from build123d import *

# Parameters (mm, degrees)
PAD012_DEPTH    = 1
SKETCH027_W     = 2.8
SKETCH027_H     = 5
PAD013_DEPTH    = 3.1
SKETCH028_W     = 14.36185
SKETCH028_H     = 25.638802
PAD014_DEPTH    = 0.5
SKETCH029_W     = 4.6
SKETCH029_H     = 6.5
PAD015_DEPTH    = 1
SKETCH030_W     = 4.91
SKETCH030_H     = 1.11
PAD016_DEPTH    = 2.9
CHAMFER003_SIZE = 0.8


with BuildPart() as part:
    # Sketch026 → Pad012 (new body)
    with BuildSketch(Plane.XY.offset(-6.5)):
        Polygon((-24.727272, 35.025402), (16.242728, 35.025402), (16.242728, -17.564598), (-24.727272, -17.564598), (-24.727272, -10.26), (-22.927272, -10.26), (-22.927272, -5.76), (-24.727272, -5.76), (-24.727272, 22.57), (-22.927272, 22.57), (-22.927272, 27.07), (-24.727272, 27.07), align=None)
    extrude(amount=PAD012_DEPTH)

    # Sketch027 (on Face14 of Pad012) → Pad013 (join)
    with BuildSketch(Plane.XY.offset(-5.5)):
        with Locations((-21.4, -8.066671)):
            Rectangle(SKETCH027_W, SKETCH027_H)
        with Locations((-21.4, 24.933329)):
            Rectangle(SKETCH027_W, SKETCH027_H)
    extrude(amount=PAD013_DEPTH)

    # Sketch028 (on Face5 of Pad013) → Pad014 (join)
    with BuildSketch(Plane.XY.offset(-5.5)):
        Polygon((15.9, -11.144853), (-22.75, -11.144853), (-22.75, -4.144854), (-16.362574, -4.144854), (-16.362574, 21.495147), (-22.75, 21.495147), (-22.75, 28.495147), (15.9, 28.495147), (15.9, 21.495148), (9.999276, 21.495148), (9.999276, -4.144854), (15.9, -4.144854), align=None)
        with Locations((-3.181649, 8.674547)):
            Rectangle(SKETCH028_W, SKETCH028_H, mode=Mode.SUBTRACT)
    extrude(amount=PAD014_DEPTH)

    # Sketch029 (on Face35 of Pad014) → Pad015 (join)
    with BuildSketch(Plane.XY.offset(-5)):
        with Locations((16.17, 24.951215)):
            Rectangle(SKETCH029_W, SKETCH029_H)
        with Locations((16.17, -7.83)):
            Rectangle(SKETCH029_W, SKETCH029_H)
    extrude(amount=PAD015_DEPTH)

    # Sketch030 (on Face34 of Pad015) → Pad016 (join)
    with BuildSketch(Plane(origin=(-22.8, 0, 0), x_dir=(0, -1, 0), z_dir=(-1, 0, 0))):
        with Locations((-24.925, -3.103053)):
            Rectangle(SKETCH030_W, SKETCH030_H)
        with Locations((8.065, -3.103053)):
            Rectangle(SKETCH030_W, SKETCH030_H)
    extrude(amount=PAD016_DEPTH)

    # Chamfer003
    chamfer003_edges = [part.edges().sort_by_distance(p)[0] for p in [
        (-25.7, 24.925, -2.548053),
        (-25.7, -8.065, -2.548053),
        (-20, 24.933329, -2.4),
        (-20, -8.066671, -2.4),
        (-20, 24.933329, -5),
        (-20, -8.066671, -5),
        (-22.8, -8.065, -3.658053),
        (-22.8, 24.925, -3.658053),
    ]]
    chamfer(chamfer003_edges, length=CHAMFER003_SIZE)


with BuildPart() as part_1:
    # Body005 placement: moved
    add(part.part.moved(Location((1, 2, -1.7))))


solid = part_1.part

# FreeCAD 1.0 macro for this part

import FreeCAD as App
import Part
import Sketcher


def edges_at(feature, points):
    """Names of the edges that pass closest to the given points."""
    edges = feature.Shape.Edges
    near = lambda p: min(range(len(edges)), key=lambda i: edges[i].distToShape(Part.Vertex(*p))[0])
    return sorted({f"Edge{near(p) + 1}" for p in points})

doc = App.newDocument("Part")
body = doc.addObject("PartDesign::Body", "Body")

# Sketch on XY plane
sketch1 = doc.addObject("Sketcher::SketchObject", "Sketch")
body.addObject(sketch1)
sketch1.AttachmentSupport = (doc.XY_Plane, [""])
sketch1.MapMode = "FlatFace"
sketch1.AttachmentOffset = App.Placement(App.Vector(0, 0, -6.5), App.Rotation())
sketch1.addGeometry([
    Part.LineSegment(App.Vector(16.242728, 35.025402, 0), App.Vector(-24.727272, 35.025402, 0)),  # 0
    Part.LineSegment(App.Vector(-24.727272, 35.025402, 0), App.Vector(-24.727272, 27.07, 0)),  # 1
    Part.LineSegment(App.Vector(-24.727272, 27.07, 0), App.Vector(-22.927272, 27.07, 0)),  # 2
    Part.LineSegment(App.Vector(-22.927272, 27.07, 0), App.Vector(-22.927272, 22.57, 0)),  # 3
    Part.LineSegment(App.Vector(-22.927272, 22.57, 0), App.Vector(-24.727272, 22.57, 0)),  # 4
    Part.LineSegment(App.Vector(-24.727272, 22.57, 0), App.Vector(-24.727272, -5.76, 0)),  # 5
    Part.LineSegment(App.Vector(-24.727272, -5.76, 0), App.Vector(-22.927272, -5.76, 0)),  # 6
    Part.LineSegment(App.Vector(-22.927272, -5.76, 0), App.Vector(-22.927272, -10.26, 0)),  # 7
    Part.LineSegment(App.Vector(-22.927272, -10.26, 0), App.Vector(-24.727272, -10.26, 0)),  # 8
    Part.LineSegment(App.Vector(-24.727272, -10.26, 0), App.Vector(-24.727272, -17.564598, 0)),  # 9
    Part.LineSegment(App.Vector(-24.727272, -17.564598, 0), App.Vector(16.242728, -17.564598, 0)),  # 10
    Part.LineSegment(App.Vector(16.242728, -17.564598, 0), App.Vector(16.242728, 35.025402, 0)),  # 11
], False)
sketch1.addConstraint([
    Sketcher.Constraint("Coincident", 0, 2, 1, 1),
    Sketcher.Constraint("Coincident", 1, 2, 2, 1),
    Sketcher.Constraint("Coincident", 2, 2, 3, 1),
    Sketcher.Constraint("Coincident", 3, 2, 4, 1),
    Sketcher.Constraint("Coincident", 4, 2, 5, 1),
    Sketcher.Constraint("Coincident", 5, 2, 6, 1),
    Sketcher.Constraint("Coincident", 6, 2, 7, 1),
    Sketcher.Constraint("Coincident", 7, 2, 8, 1),
    Sketcher.Constraint("Coincident", 8, 2, 9, 1),
    Sketcher.Constraint("Coincident", 9, 2, 10, 1),
    Sketcher.Constraint("Coincident", 10, 2, 11, 1),
    Sketcher.Constraint("Coincident", 11, 2, 0, 1),
    Sketcher.Constraint("Horizontal", 0),
    Sketcher.Constraint("Vertical", 1),
    Sketcher.Constraint("Horizontal", 2),
    Sketcher.Constraint("Vertical", 3),
    Sketcher.Constraint("Horizontal", 4),
    Sketcher.Constraint("Vertical", 5),
    Sketcher.Constraint("Horizontal", 6),
    Sketcher.Constraint("Vertical", 7),
    Sketcher.Constraint("Horizontal", 8),
    Sketcher.Constraint("Vertical", 9),
    Sketcher.Constraint("Horizontal", 10),
    Sketcher.Constraint("Vertical", 11),
    Sketcher.Constraint("Vertical", 1, 2, 4, 2),
    Sketcher.Constraint("Vertical", 3, 2, 6, 2),
    Sketcher.Constraint("Vertical", 5, 2, 8, 2),
    Sketcher.Constraint("Equal", 3, 7),
    Sketcher.Constraint("DistanceX", 2, 1, 2, 2, 1.8),
    Sketcher.Constraint("DistanceY", 3, 2, 3, 1, 4.5),
    Sketcher.Constraint("DistanceX", 0, 2, 0, 1, 40.97),
    Sketcher.Constraint("DistanceY", 5, 2, 5, 1, 28.33),
    Sketcher.Constraint("DistanceY", 11, 1, 11, 2, 52.59),
    Sketcher.Constraint("DistanceY", -1, 1, 1, 2, 27.07),
    Sketcher.Constraint("DistanceY", 1, 2, 1, 1, 7.955402),
    Sketcher.Constraint("DistanceX", 0, 2, -1, 1, 24.727272),
])
pad1 = doc.addObject("PartDesign::Pad", "Pad")
body.addObject(pad1)
pad1.Profile = sketch1
pad1.Length = 1

# Sketch on XY plane
sketch2 = doc.addObject("Sketcher::SketchObject", "Sketch001")
body.addObject(sketch2)
sketch2.AttachmentSupport = (doc.XY_Plane, [""])
sketch2.MapMode = "FlatFace"
sketch2.AttachmentOffset = App.Placement(App.Vector(0, 0, -5.5), App.Rotation())
sketch2.addGeometry([
    Part.LineSegment(App.Vector(-22.8, -5.566671, 0), App.Vector(-22.8, -10.566671, 0)),  # 0
    Part.LineSegment(App.Vector(-22.8, -10.566671, 0), App.Vector(-20, -10.566671, 0)),  # 1
    Part.LineSegment(App.Vector(-20, -10.566671, 0), App.Vector(-20, -5.566671, 0)),  # 2
    Part.LineSegment(App.Vector(-20, -5.566671, 0), App.Vector(-22.8, -5.566671, 0)),  # 3
    Part.LineSegment(App.Vector(-22.8, 27.433329, 0), App.Vector(-22.8, 22.433329, 0)),  # 4
    Part.LineSegment(App.Vector(-22.8, 22.433329, 0), App.Vector(-20, 22.433329, 0)),  # 5
    Part.LineSegment(App.Vector(-20, 22.433329, 0), App.Vector(-20, 27.433329, 0)),  # 6
    Part.LineSegment(App.Vector(-20, 27.433329, 0), App.Vector(-22.8, 27.433329, 0)),  # 7
], False)
sketch2.addConstraint([
    Sketcher.Constraint("Coincident", 0, 2, 1, 1),
    Sketcher.Constraint("Coincident", 1, 2, 2, 1),
    Sketcher.Constraint("Coincident", 2, 2, 3, 1),
    Sketcher.Constraint("Coincident", 3, 2, 0, 1),
    Sketcher.Constraint("Coincident", 4, 2, 5, 1),
    Sketcher.Constraint("Coincident", 5, 2, 6, 1),
    Sketcher.Constraint("Coincident", 6, 2, 7, 1),
    Sketcher.Constraint("Coincident", 7, 2, 4, 1),
    Sketcher.Constraint("Vertical", 0),
    Sketcher.Constraint("Horizontal", 1),
    Sketcher.Constraint("Vertical", 2),
    Sketcher.Constraint("Horizontal", 3),
    Sketcher.Constraint("Vertical", 4),
    Sketcher.Constraint("Horizontal", 5),
    Sketcher.Constraint("Vertical", 6),
    Sketcher.Constraint("Horizontal", 7),
    Sketcher.Constraint("Vertical", 3, 2, 4, 2),
    Sketcher.Constraint("Vertical", 2, 2, 5, 2),
    Sketcher.Constraint("Equal", 2, 4),
    Sketcher.Constraint("DistanceY", 0, 2, 0, 1, 5.0),
    Sketcher.Constraint("DistanceX", 1, 1, 1, 2, 2.8),
    Sketcher.Constraint("DistanceX", 1, 2, -1, 1, 20.0),
    Sketcher.Constraint("DistanceY", 3, 2, 4, 2, 28.0),
    Sketcher.Constraint("DistanceY", 0, 2, -1, 1, 10.566671),
])
pad2 = doc.addObject("PartDesign::Pad", "Pad001")
body.addObject(pad2)
pad2.Profile = sketch2
pad2.Length = 3.1

# Sketch on XY plane
sketch3 = doc.addObject("Sketcher::SketchObject", "Sketch002")
body.addObject(sketch3)
sketch3.AttachmentSupport = (doc.XY_Plane, [""])
sketch3.MapMode = "FlatFace"
sketch3.AttachmentOffset = App.Placement(App.Vector(0, 0, -5.5), App.Rotation())
sketch3.addGeometry([
    Part.LineSegment(App.Vector(-22.75, -11.144853, 0), App.Vector(15.9, -11.144853, 0)),  # 0
    Part.LineSegment(App.Vector(15.9, -11.144853, 0), App.Vector(15.9, -4.144854, 0)),  # 1
    Part.LineSegment(App.Vector(15.9, -4.144854, 0), App.Vector(9.999276, -4.144854, 0)),  # 2
    Part.LineSegment(App.Vector(9.999276, -4.144854, 0), App.Vector(9.999276, 21.495148, 0)),  # 3
    Part.LineSegment(App.Vector(9.999276, 21.495148, 0), App.Vector(15.9, 21.495148, 0)),  # 4
    Part.LineSegment(App.Vector(15.9, 21.495148, 0), App.Vector(15.9, 28.495147, 0)),  # 5
    Part.LineSegment(App.Vector(15.9, 28.495147, 0), App.Vector(-22.75, 28.495147, 0)),  # 6
    Part.LineSegment(App.Vector(-22.75, 28.495147, 0), App.Vector(-22.75, 21.495147, 0)),  # 7
    Part.LineSegment(App.Vector(-22.75, 21.495147, 0), App.Vector(-16.362574, 21.495147, 0)),  # 8
    Part.LineSegment(App.Vector(-16.362574, 21.495147, 0), App.Vector(-16.362574, -4.144854, 0)),  # 9
    Part.LineSegment(App.Vector(-16.362574, -4.144854, 0), App.Vector(-22.75, -4.144854, 0)),  # 10
    Part.LineSegment(App.Vector(-22.75, -4.144854, 0), App.Vector(-22.75, -11.144853, 0)),  # 11
    Part.LineSegment(App.Vector(-10.362574, -4.144854, 0), App.Vector(-10.362574, 21.493948, 0)),  # 12
    Part.LineSegment(App.Vector(-10.362574, 21.493948, 0), App.Vector(3.999276, 21.493948, 0)),  # 13
    Part.LineSegment(App.Vector(3.999276, 21.493948, 0), App.Vector(3.999276, -4.144854, 0)),  # 14
    Part.LineSegment(App.Vector(3.999276, -4.144854, 0), App.Vector(-10.362574, -4.144854, 0)),  # 15
], False)
sketch3.addConstraint([
    Sketcher.Constraint("Coincident", 0, 2, 1, 1),
    Sketcher.Constraint("Coincident", 1, 2, 2, 1),
    Sketcher.Constraint("Coincident", 2, 2, 3, 1),
    Sketcher.Constraint("Coincident", 3, 2, 4, 1),
    Sketcher.Constraint("Coincident", 4, 2, 5, 1),
    Sketcher.Constraint("Coincident", 5, 2, 6, 1),
    Sketcher.Constraint("Coincident", 6, 2, 7, 1),
    Sketcher.Constraint("Coincident", 7, 2, 8, 1),
    Sketcher.Constraint("Coincident", 8, 2, 9, 1),
    Sketcher.Constraint("Coincident", 9, 2, 10, 1),
    Sketcher.Constraint("Coincident", 10, 2, 11, 1),
    Sketcher.Constraint("Coincident", 11, 2, 0, 1),
    Sketcher.Constraint("Coincident", 12, 2, 13, 1),
    Sketcher.Constraint("Coincident", 13, 2, 14, 1),
    Sketcher.Constraint("Coincident", 14, 2, 15, 1),
    Sketcher.Constraint("Coincident", 15, 2, 12, 1),
    Sketcher.Constraint("Horizontal", 0),
    Sketcher.Constraint("Vertical", 1),
    Sketcher.Constraint("Horizontal", 2),
    Sketcher.Constraint("Vertical", 3),
    Sketcher.Constraint("Horizontal", 4),
    Sketcher.Constraint("Vertical", 5),
    Sketcher.Constraint("Horizontal", 6),
    Sketcher.Constraint("Vertical", 7),
    Sketcher.Constraint("Horizontal", 8),
    Sketcher.Constraint("Vertical", 9),
    Sketcher.Constraint("Horizontal", 10),
    Sketcher.Constraint("Vertical", 11),
    Sketcher.Constraint("Vertical", 12),
    Sketcher.Constraint("Horizontal", 13),
    Sketcher.Constraint("Vertical", 14),
    Sketcher.Constraint("Horizontal", 15),
    Sketcher.Constraint("Horizontal", 4, 2, 7, 2),
    Sketcher.Constraint("Horizontal", 2, 2, 9, 2),
    Sketcher.Constraint("Horizontal", 10, 2, 14, 2),
    Sketcher.Constraint("Vertical", 1, 2, 4, 2),
    Sketcher.Constraint("Vertical", 7, 2, 10, 2),
    Sketcher.Constraint("Equal", 1, 5),
    Sketcher.Constraint("DistanceY", 1, 1, 1, 2, 6.999999),
    Sketcher.Constraint("DistanceX", 8, 2, 12, 2, 6.0),
    Sketcher.Constraint("DistanceX", 13, 2, 3, 2, 6.0),
    Sketcher.Constraint("DistanceX", 0, 1, 0, 2, 38.65),
    Sketcher.Constraint("DistanceY", 3, 1, 3, 2, 25.640002),
    Sketcher.Constraint("DistanceX", -1, 1, 0, 2, 15.9),
    Sketcher.Constraint("DistanceY", 12, 1, 12, 2, 25.638802),
    Sketcher.Constraint("DistanceX", 13, 1, 13, 2, 14.36185),
    Sketcher.Constraint("DistanceX", 2, 2, 2, 1, 5.900724),
    Sketcher.Constraint("DistanceY", -1, 1, 3, 2, 21.495148),
])
pad3 = doc.addObject("PartDesign::Pad", "Pad002")
body.addObject(pad3)
pad3.Profile = sketch3
pad3.Length = 0.5

# Sketch on XY plane
sketch4 = doc.addObject("Sketcher::SketchObject", "Sketch003")
body.addObject(sketch4)
sketch4.AttachmentSupport = (doc.XY_Plane, [""])
sketch4.MapMode = "FlatFace"
sketch4.AttachmentOffset = App.Placement(App.Vector(0, 0, -5), App.Rotation())
sketch4.addGeometry([
    Part.LineSegment(App.Vector(13.87, 28.201215, 0), App.Vector(13.87, 21.701215, 0)),  # 0
    Part.LineSegment(App.Vector(13.87, 21.701215, 0), App.Vector(18.47, 21.701215, 0)),  # 1
    Part.LineSegment(App.Vector(18.47, 21.701215, 0), App.Vector(18.47, 28.201215, 0)),  # 2
    Part.LineSegment(App.Vector(18.47, 28.201215, 0), App.Vector(13.87, 28.201215, 0)),  # 3
    Part.LineSegment(App.Vector(13.87, -4.58, 0), App.Vector(13.87, -11.08, 0)),  # 4
    Part.LineSegment(App.Vector(13.87, -11.08, 0), App.Vector(18.47, -11.08, 0)),  # 5
    Part.LineSegment(App.Vector(18.47, -11.08, 0), App.Vector(18.47, -4.58, 0)),  # 6
    Part.LineSegment(App.Vector(18.47, -4.58, 0), App.Vector(13.87, -4.58, 0)),  # 7
], False)
sketch4.addConstraint([
    Sketcher.Constraint("Coincident", 0, 2, 1, 1),
    Sketcher.Constraint("Coincident", 1, 2, 2, 1),
    Sketcher.Constraint("Coincident", 2, 2, 3, 1),
    Sketcher.Constraint("Coincident", 3, 2, 0, 1),
    Sketcher.Constraint("Coincident", 4, 2, 5, 1),
    Sketcher.Constraint("Coincident", 5, 2, 6, 1),
    Sketcher.Constraint("Coincident", 6, 2, 7, 1),
    Sketcher.Constraint("Coincident", 7, 2, 4, 1),
    Sketcher.Constraint("Vertical", 0),
    Sketcher.Constraint("Horizontal", 1),
    Sketcher.Constraint("Vertical", 2),
    Sketcher.Constraint("Horizontal", 3),
    Sketcher.Constraint("Vertical", 4),
    Sketcher.Constraint("Horizontal", 5),
    Sketcher.Constraint("Vertical", 6),
    Sketcher.Constraint("Horizontal", 7),
    Sketcher.Constraint("Vertical", 3, 2, 4, 2),
    Sketcher.Constraint("Vertical", 2, 2, 5, 2),
    Sketcher.Constraint("Equal", 2, 4),
    Sketcher.Constraint("DistanceX", 1, 1, 1, 2, 4.6),
    Sketcher.Constraint("DistanceY", 0, 2, 0, 1, 6.5),
    Sketcher.Constraint("DistanceX", -1, 1, 0, 2, 13.87),
    Sketcher.Constraint("DistanceY", 4, 2, -1, 1, 11.08),
    Sketcher.Constraint("DistanceY", -1, 1, 0, 2, 21.701215),
])
pad4 = doc.addObject("PartDesign::Pad", "Pad003")
body.addObject(pad4)
pad4.Profile = sketch4
pad4.Length = 1

# Sketch on YZ plane
sketch5 = doc.addObject("Sketcher::SketchObject", "Sketch004")
body.addObject(sketch5)
sketch5.AttachmentSupport = (doc.YZ_Plane, [""])
sketch5.MapMode = "FlatFace"
sketch5.AttachmentOffset = App.Placement(App.Vector(0, 0, -22.8), App.Rotation())
sketch5.addGeometry([
    Part.LineSegment(App.Vector(27.38, -2.548053, 0), App.Vector(27.38, -3.658053, 0)),  # 0
    Part.LineSegment(App.Vector(27.38, -3.658053, 0), App.Vector(22.47, -3.658053, 0)),  # 1
    Part.LineSegment(App.Vector(22.47, -3.658053, 0), App.Vector(22.47, -2.548053, 0)),  # 2
    Part.LineSegment(App.Vector(22.47, -2.548053, 0), App.Vector(27.38, -2.548053, 0)),  # 3
    Part.LineSegment(App.Vector(-5.61, -2.548053, 0), App.Vector(-5.61, -3.658053, 0)),  # 4
    Part.LineSegment(App.Vector(-5.61, -3.658053, 0), App.Vector(-10.52, -3.658053, 0)),  # 5
    Part.LineSegment(App.Vector(-10.52, -3.658053, 0), App.Vector(-10.52, -2.548053, 0)),  # 6
    Part.LineSegment(App.Vector(-10.52, -2.548053, 0), App.Vector(-5.61, -2.548053, 0)),  # 7
], False)
sketch5.addConstraint([
    Sketcher.Constraint("Coincident", 0, 2, 1, 1),
    Sketcher.Constraint("Coincident", 1, 2, 2, 1),
    Sketcher.Constraint("Coincident", 2, 2, 3, 1),
    Sketcher.Constraint("Coincident", 3, 2, 0, 1),
    Sketcher.Constraint("Coincident", 4, 2, 5, 1),
    Sketcher.Constraint("Coincident", 5, 2, 6, 1),
    Sketcher.Constraint("Coincident", 6, 2, 7, 1),
    Sketcher.Constraint("Coincident", 7, 2, 4, 1),
    Sketcher.Constraint("Vertical", 0),
    Sketcher.Constraint("Horizontal", 1),
    Sketcher.Constraint("Vertical", 2),
    Sketcher.Constraint("Horizontal", 3),
    Sketcher.Constraint("Vertical", 4),
    Sketcher.Constraint("Horizontal", 5),
    Sketcher.Constraint("Vertical", 6),
    Sketcher.Constraint("Horizontal", 7),
    Sketcher.Constraint("Horizontal", 1, 2, 4, 2),
    Sketcher.Constraint("Horizontal", 3, 2, 6, 2),
    Sketcher.Constraint("Equal", 3, 5),
    Sketcher.Constraint("DistanceX", 1, 2, 1, 1, 4.91),
    Sketcher.Constraint("DistanceY", 0, 2, 0, 1, 1.11),
    Sketcher.Constraint("DistanceX", 5, 2, 0, 2, 37.9),
    Sketcher.Constraint("DistanceX", -1, 1, 0, 2, 27.38),
    Sketcher.Constraint("DistanceY", 0, 2, -1, 1, 3.658053),
])
pad5 = doc.addObject("PartDesign::Pad", "Pad004")
body.addObject(pad5)
pad5.Profile = sketch5
pad5.Length = 2.9
pad5.Reversed = True
doc.recompute()

chamfer = doc.addObject("PartDesign::Chamfer", "Chamfer")
body.addObject(chamfer)
chamfer.Base = (pad5, edges_at(pad5, [
    (-25.7, 24.925, -2.548),
    (-25.7, -8.065, -2.548),
    (-20, 24.933, -2.4),
    (-20, -8.067, -2.4),
    (-20, 24.933, -5),
    (-20, -8.067, -5),
    (-22.8, -8.065, -3.658),
    (-22.8, 24.925, -3.658),
]))
chamfer.Size = 0.8
body2 = doc.addObject("PartDesign::Body", "Body001")
doc.recompute()

body.Placement = App.Placement(App.Vector(1, 2, -1.7), App.Rotation(App.Vector(0, 0, 1), 0))
boolean = doc.addObject("PartDesign::Boolean", "Boolean")
body2.addObject(boolean)
boolean.Type = "Fuse"
boolean.addObjects([body])

doc.recompute()
